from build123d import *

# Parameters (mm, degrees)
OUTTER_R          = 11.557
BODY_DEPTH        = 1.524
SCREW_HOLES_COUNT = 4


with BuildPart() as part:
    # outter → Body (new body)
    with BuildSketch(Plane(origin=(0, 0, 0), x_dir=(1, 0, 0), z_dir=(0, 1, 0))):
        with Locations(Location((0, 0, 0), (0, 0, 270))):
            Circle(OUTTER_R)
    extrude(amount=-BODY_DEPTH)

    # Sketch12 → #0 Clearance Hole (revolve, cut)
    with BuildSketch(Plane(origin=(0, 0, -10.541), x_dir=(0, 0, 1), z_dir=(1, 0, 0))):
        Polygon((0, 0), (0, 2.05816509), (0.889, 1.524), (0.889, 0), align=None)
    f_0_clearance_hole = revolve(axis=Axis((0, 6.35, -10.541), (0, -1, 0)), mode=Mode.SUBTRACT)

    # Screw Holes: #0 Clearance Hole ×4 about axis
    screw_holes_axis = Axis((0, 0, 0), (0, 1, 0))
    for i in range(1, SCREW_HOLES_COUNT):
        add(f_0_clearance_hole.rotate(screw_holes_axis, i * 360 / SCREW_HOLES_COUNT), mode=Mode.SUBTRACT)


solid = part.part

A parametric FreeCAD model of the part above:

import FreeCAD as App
import Part
import Sketcher
from FreeCAD import Vector
Q = App.Units.Quantity

doc = App.newDocument("Part")
params = doc.addObject("Spreadsheet::Sheet", "Params")
for row, (alias, value) in enumerate([
    ("sketch1_diameter", "0.91 in"),
    ("pad1_length", "0.06 in"),
    ("sketch2_width", "0.06 in"),
    ("sketch2_height", "0.035 in"),
    ("groove_angle", "360 deg"),
], start=1):
    params.set(f"A{row}", alias)
    params.set(f"B{row}", "=" + value)
    params.setAlias(f"B{row}", alias)

body = doc.addObject("PartDesign::Body", "Body")

# Sketch on XZ plane
sketch1 = doc.addObject("Sketcher::SketchObject", "Sketch")
body.addObject(sketch1)
sketch1.AttachmentSupport = (doc.XZ_Plane, [""])
sketch1.MapMode = "FlatFace"
sketch1.addGeometry(Part.Circle(Vector(0, 0, 0), Vector(0, 0, 1), 11.557), False)
sketch1.addConstraint(Sketcher.Constraint("Coincident", 0, 3, -1, 1))
sketch1.addConstraint(Sketcher.Constraint("Diameter", 0, Q("0.91 in")))
sketch1.setExpression("Constraints[1]", "Params.sketch1_diameter")
pad1 = doc.addObject("PartDesign::Pad", "Pad")
body.addObject(pad1)
pad1.Profile = sketch1
pad1.setExpression("Length", "Params.pad1_length")

# Sketch on YZ plane
sketch2 = doc.addObject("Sketcher::SketchObject", "Sketch001")
body.addObject(sketch2)
sketch2.AttachmentSupport = (doc.YZ_Plane, [""])
sketch2.MapMode = "FlatFace"
sketch2.addGeometry(Part.LineSegment(Vector(-2.058165, -10.541, 0), Vector(0, -10.541, 0)), False)
sketch2.addGeometry(Part.LineSegment(Vector(0, -10.541, 0), Vector(0, -9.652, 0)), False)
sketch2.addGeometry(Part.LineSegment(Vector(0, -9.652, 0), Vector(-1.524, -9.652, 0)), False)
sketch2.addGeometry(Part.LineSegment(Vector(-1.524, -9.652, 0), Vector(-2.058165, -10.541, 0)), False)
sketch2.addGeometry(Part.LineSegment(Vector(0, -10.541, 0), Vector(-2.058165, -10.541, 0)), True)  # axis
sketch2.addConstraint(Sketcher.Constraint("Coincident", 0, 2, 1, 1))
sketch2.addConstraint(Sketcher.Constraint("Coincident", 1, 2, 2, 1))
sketch2.addConstraint(Sketcher.Constraint("Coincident", 2, 2, 3, 1))
sketch2.addConstraint(Sketcher.Constraint("Coincident", 3, 2, 0, 1))
sketch2.addConstraint(Sketcher.Constraint("Horizontal", 0))
sketch2.addConstraint(Sketcher.Constraint("Vertical", 1))
sketch2.addConstraint(Sketcher.Constraint("Horizontal", 2))
sketch2.addConstraint(Sketcher.Constraint("Horizontal", 4))
sketch2.addConstraint(Sketcher.Constraint("Coincident", 4, 1, 0, 2))
sketch2.addConstraint(Sketcher.Constraint("PointOnObject", 0, 2, -2))
sketch2.addConstraint(Sketcher.Constraint("Equal", 0, 4))
sketch2.addConstraint(Sketcher.Constraint("Angle", 3, Q("-121 deg")))
sketch2.addConstraint(Sketcher.Constraint("DistanceX", 2, 2, 2, 1, Q("0.06 in")))
sketch2.addConstraint(Sketcher.Constraint("DistanceY", 1, 1, 1, 2, Q("0.035 in")))
sketch2.addConstraint(Sketcher.Constraint("DistanceY", 1, 2, -1, 1, Q("0.38 in")))
sketch2.setExpression("Constraints[12]", "Params.sketch2_width")
sketch2.setExpression("Constraints[13]", "Params.sketch2_height")
groove = doc.addObject("PartDesign::Groove", "Groove")
body.addObject(groove)
groove.Profile = sketch2
groove.ReferenceAxis = (sketch2, ["Axis0"])
groove.setExpression("Angle", "Params.groove_angle")
doc.recompute()

polarpattern = doc.addObject("PartDesign::PolarPattern", "PolarPattern")
body.addObject(polarpattern)
polarpattern.Originals = [groove]
polarpattern.Axis = (doc.Y_Axis, [""])
polarpattern.Angle = 360
polarpattern.Occurrences = 4
body.Tip = polarpattern

doc.recompute()
